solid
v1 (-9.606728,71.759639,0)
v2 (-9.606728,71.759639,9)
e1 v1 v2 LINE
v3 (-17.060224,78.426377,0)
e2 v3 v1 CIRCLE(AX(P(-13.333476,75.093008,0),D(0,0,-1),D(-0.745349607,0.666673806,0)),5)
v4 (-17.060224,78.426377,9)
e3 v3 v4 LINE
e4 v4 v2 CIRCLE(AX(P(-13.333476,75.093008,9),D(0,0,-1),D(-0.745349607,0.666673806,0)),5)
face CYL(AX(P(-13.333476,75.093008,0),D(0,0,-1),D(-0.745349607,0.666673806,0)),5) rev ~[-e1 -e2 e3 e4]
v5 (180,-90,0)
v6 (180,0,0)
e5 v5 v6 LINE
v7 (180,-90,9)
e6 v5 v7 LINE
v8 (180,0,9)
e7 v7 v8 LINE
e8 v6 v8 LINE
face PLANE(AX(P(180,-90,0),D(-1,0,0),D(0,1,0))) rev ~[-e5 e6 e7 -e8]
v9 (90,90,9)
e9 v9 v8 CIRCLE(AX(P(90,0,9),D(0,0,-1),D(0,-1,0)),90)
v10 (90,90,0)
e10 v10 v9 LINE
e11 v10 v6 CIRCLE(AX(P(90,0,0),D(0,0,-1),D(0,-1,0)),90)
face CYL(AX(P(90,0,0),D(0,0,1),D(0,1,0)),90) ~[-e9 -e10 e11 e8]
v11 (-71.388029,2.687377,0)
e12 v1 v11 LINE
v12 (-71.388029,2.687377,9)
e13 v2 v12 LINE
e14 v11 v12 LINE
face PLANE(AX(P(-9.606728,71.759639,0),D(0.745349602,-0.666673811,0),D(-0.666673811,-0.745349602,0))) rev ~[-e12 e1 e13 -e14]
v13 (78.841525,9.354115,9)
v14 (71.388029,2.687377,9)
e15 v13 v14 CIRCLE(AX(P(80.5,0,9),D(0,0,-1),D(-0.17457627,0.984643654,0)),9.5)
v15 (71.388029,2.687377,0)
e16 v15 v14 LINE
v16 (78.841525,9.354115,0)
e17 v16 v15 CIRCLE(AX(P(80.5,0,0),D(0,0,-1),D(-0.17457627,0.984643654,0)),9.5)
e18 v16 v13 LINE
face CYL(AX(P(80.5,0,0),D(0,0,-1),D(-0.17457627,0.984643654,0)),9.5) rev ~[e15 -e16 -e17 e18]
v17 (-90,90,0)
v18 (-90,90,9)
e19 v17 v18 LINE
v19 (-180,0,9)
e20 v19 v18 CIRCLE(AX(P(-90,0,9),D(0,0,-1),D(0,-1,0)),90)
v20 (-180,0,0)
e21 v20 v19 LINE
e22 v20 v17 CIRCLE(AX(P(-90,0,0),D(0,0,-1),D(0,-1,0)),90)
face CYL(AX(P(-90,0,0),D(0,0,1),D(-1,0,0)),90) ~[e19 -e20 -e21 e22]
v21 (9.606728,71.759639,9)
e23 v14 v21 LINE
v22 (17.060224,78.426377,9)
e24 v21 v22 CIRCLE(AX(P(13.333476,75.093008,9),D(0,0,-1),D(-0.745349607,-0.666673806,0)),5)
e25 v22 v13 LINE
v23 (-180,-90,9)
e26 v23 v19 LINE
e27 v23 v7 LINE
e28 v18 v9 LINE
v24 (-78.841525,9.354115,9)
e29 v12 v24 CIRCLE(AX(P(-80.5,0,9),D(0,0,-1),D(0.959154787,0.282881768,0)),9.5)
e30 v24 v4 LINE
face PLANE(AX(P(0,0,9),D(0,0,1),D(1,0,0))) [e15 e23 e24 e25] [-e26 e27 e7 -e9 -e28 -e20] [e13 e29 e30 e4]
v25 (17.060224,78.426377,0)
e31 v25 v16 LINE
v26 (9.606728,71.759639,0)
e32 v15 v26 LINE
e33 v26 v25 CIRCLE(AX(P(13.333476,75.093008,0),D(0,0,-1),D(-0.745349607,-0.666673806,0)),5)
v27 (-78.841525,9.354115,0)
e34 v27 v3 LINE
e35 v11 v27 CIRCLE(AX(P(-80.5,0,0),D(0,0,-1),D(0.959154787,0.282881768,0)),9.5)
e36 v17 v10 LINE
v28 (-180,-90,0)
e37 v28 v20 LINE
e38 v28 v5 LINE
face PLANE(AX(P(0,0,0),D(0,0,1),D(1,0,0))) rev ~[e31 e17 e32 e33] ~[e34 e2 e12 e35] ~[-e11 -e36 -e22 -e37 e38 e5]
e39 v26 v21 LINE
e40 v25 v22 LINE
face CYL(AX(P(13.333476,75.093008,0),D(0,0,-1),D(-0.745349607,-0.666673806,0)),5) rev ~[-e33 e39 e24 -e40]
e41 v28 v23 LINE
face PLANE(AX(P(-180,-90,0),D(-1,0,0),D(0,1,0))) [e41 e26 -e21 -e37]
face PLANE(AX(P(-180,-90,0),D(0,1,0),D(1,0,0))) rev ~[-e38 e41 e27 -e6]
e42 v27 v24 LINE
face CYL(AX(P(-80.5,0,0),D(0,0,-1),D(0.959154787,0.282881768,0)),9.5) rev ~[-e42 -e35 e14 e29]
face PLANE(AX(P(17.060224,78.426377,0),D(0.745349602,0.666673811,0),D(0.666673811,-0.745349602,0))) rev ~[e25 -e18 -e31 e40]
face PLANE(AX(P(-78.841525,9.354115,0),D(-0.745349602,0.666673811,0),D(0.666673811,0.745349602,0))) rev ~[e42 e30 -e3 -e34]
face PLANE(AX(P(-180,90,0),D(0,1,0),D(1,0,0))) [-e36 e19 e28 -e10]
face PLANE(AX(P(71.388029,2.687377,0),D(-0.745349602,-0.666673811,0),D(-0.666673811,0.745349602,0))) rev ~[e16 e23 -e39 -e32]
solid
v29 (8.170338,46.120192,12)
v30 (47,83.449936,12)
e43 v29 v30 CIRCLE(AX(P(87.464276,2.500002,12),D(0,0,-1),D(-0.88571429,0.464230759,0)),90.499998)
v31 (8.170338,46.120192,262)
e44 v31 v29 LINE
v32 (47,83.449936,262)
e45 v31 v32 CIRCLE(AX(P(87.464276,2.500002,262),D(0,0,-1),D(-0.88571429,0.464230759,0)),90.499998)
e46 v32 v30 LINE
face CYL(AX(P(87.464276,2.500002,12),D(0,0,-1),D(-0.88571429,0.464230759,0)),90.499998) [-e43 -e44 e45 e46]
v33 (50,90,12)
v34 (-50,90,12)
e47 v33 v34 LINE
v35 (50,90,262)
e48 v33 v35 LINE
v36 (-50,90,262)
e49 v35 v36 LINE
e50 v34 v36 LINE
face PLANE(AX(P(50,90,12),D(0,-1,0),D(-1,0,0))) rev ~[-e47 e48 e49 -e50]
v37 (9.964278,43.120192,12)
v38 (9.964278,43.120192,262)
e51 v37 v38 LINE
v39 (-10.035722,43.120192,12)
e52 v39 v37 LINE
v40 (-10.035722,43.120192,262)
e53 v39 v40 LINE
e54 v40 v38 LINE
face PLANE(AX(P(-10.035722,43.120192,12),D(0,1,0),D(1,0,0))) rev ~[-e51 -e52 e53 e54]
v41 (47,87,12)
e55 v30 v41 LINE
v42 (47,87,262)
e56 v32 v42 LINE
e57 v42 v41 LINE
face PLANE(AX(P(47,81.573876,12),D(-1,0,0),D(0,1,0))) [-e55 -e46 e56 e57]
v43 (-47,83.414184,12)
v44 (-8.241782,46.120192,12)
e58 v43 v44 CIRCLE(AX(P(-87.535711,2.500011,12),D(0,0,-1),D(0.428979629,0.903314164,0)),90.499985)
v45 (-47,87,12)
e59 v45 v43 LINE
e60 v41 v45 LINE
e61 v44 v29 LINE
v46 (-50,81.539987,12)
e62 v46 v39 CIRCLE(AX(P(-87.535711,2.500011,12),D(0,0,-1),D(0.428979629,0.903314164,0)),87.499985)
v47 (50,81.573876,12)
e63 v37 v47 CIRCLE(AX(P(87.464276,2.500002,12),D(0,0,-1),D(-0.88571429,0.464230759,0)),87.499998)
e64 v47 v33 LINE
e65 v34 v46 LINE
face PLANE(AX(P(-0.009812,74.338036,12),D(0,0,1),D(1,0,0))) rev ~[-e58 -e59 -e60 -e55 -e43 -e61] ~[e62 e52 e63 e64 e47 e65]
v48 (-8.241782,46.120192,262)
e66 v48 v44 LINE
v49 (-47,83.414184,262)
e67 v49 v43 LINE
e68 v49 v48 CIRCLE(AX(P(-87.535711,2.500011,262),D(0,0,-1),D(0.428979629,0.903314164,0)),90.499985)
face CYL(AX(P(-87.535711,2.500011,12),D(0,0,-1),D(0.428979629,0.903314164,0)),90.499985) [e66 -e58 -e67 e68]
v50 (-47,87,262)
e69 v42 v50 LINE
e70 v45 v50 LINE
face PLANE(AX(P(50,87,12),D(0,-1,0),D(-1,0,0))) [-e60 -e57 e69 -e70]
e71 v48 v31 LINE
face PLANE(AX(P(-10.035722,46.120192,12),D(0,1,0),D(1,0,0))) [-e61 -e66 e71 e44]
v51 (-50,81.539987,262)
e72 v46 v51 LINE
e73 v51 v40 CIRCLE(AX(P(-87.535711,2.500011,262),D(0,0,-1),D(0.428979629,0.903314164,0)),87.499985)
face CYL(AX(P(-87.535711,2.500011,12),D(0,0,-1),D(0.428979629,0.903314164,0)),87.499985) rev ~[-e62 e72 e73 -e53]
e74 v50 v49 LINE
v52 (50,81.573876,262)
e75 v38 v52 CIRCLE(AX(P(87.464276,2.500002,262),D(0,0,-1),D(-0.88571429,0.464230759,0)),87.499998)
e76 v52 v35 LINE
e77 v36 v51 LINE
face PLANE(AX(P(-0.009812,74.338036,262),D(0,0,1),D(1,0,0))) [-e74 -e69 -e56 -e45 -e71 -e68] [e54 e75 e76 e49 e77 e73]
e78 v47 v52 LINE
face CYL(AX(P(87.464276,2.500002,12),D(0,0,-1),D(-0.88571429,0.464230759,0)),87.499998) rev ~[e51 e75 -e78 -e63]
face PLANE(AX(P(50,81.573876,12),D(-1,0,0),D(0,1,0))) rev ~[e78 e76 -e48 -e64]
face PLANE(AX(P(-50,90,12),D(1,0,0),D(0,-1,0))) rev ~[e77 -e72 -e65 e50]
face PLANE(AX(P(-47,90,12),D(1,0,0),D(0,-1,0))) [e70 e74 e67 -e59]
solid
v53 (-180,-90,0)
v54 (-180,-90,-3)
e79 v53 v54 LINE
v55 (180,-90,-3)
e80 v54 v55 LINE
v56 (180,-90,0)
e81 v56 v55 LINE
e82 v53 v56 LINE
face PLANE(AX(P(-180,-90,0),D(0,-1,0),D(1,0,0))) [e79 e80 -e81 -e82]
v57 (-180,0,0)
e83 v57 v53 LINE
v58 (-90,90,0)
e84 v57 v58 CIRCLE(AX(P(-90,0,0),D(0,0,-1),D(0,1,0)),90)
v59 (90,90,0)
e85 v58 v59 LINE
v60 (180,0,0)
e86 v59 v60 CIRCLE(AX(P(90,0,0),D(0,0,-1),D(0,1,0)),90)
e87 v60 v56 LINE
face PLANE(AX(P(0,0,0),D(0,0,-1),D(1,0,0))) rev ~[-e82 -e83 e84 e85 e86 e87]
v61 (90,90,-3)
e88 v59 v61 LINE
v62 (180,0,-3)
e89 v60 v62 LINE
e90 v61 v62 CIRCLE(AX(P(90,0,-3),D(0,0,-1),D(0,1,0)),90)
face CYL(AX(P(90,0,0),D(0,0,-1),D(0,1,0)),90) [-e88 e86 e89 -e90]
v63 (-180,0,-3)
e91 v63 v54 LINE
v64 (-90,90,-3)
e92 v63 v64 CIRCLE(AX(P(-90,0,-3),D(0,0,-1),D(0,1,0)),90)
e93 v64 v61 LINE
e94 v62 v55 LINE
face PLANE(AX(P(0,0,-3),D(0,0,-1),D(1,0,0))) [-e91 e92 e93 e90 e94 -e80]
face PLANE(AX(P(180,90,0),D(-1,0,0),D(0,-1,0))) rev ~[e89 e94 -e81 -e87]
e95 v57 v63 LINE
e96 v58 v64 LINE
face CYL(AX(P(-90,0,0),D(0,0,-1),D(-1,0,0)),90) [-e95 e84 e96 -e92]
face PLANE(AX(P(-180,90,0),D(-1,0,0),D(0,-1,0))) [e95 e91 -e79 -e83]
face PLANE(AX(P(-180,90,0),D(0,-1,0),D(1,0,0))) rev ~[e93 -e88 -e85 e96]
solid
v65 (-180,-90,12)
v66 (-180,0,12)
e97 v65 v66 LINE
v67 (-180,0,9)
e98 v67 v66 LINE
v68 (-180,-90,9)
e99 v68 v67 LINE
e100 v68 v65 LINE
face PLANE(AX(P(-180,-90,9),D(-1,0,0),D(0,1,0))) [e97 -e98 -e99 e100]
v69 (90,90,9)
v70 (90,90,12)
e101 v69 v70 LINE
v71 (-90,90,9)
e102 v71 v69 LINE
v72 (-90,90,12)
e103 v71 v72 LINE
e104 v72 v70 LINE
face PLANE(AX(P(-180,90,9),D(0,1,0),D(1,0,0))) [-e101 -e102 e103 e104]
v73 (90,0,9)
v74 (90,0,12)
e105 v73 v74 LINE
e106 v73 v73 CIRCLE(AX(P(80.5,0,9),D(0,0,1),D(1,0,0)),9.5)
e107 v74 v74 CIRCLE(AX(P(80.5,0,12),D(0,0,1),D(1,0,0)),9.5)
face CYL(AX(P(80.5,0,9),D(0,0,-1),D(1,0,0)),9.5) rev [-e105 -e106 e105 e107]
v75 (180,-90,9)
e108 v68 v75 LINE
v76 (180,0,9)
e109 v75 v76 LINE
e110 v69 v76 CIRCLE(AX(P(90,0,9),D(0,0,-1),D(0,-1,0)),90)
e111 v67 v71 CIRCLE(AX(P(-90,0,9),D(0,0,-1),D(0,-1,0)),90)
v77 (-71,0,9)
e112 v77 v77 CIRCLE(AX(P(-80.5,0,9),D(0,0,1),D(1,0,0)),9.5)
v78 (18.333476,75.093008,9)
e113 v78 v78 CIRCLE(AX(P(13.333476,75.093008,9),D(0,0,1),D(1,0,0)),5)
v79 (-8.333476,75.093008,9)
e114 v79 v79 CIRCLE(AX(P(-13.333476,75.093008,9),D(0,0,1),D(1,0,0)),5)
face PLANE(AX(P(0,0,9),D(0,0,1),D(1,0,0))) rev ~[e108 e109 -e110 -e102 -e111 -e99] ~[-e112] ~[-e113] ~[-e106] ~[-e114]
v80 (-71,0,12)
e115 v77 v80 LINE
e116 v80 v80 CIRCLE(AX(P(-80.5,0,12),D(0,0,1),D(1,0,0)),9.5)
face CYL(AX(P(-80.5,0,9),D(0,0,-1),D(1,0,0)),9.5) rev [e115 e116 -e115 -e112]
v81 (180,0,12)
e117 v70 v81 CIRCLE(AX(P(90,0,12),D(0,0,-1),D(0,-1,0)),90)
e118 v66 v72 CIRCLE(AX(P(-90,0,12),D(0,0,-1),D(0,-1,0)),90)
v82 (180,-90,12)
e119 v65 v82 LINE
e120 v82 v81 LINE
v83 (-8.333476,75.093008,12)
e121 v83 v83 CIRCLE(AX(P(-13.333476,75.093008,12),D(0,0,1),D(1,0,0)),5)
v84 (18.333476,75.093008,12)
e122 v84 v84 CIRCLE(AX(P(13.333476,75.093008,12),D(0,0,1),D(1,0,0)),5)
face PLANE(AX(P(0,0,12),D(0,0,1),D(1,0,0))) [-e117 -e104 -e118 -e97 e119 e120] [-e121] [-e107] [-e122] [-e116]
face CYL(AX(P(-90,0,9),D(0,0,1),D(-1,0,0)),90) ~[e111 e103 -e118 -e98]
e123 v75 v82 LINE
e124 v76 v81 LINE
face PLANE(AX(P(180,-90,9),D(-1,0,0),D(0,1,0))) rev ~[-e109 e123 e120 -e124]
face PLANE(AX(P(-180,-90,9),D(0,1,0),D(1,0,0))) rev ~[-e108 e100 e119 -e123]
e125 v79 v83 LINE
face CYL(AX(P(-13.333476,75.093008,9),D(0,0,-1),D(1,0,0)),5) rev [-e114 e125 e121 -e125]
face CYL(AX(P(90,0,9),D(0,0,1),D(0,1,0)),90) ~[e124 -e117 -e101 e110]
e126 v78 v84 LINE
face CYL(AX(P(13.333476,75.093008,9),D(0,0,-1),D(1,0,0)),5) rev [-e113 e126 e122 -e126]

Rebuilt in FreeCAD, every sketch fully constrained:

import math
import FreeCAD as App
import Part
import Sketcher

V = App.Vector


def edges_at(feature, points):
    """Names of the edges that pass closest to the given points."""
    edges = feature.Shape.Edges
    near = lambda p: min(range(len(edges)), key=lambda i: edges[i].distToShape(Part.Vertex(*p))[0])
    return sorted({f"Edge{near(p) + 1}" for p in points})


def faces_at(feature, points):
    """Names of the faces that lie closest to the given points."""
    faces = feature.Shape.Faces
    near = lambda p: min(range(len(faces)), key=lambda i: faces[i].distToShape(Part.Vertex(*p))[0])
    return sorted({f"Face{near(p) + 1}" for p in points})


def add_polygon(sketch, points):
    """Adds a closed chain of lines whose ends are joined by coincident constraints."""
    first, n = sketch.GeometryCount, len(points)
    for a, b in zip(points, points[1:] + points[:1]):
        sketch.addGeometry(Part.LineSegment(App.Vector(*a, 0), App.Vector(*b, 0)), False)
    for i in range(n):
        sketch.addConstraint(Sketcher.Constraint("Coincident", first + i, 2, first + (i + 1) % n, 1))

doc = App.newDocument("Part")
body = doc.addObject("PartDesign::Body", "Body")

sketch1 = body.newObject("Sketcher::SketchObject", "Sketch")
sketch1.AttachmentSupport = (doc.getObject("XY_Plane"), [""])
sketch1.MapMode = "FlatFace"
add_polygon(sketch1, [(-180, 90), (-180, -90), (180, -90), (180, 90)])
sketch1.addGeometry(Part.LineSegment(V(-9.6, 71.8, 0), V(-71.4, 2.7, 0)), False)
sketch1.addGeometry(Part.ArcOfCircle(Part.Circle(V(-80.5, 0, 0), V(0, 0, 1), 9.5), math.radians(80), math.radians(376)), False)
sketch1.addGeometry(Part.LineSegment(V(-78.8, 9.4, 0), V(-17.1, 78.4, 0)), False)
sketch1.addGeometry(Part.ArcOfCircle(Part.Circle(V(-13.3, 75.1, 0), V(0, 0, 1), 5), math.radians(-42), math.radians(138)), False)
sketch1.addGeometry(Part.ArcOfCircle(Part.Circle(V(80.5, 0, 0), V(0, 0, 1), 9.5), math.radians(164), math.radians(460)), False)
sketch1.addGeometry(Part.LineSegment(V(71.4, 2.7, 0), V(9.6, 71.8, 0)), False)
sketch1.addGeometry(Part.ArcOfCircle(Part.Circle(V(13.3, 75.1, 0), V(0, 0, 1), 5), math.radians(42), math.radians(222)), False)
sketch1.addGeometry(Part.LineSegment(V(17.1, 78.4, 0), V(78.8, 9.4, 0)), False)
sketch1.addConstraint(Sketcher.Constraint("Coincident", 4, 2, 5, 2))
sketch1.addConstraint(Sketcher.Constraint("Coincident", 5, 1, 6, 1))
sketch1.addConstraint(Sketcher.Constraint("Tangent", 6, 2, 7, 2))
sketch1.addConstraint(Sketcher.Constraint("Tangent", 7, 1, 4, 1))
sketch1.addConstraint(Sketcher.Constraint("Coincident", 8, 1, 9, 1))
sketch1.addConstraint(Sketcher.Constraint("Tangent", 9, 2, 10, 2))
sketch1.addConstraint(Sketcher.Constraint("Tangent", 10, 1, 11, 1))
sketch1.addConstraint(Sketcher.Constraint("Coincident", 11, 2, 8, 2))
sketch1.addConstraint(Sketcher.Constraint("Vertical", 0))
sketch1.addConstraint(Sketcher.Constraint("Horizontal", 1))
sketch1.addConstraint(Sketcher.Constraint("Vertical", 2))
sketch1.addConstraint(Sketcher.Constraint("Horizontal", 3))
sketch1.addConstraint(Sketcher.Constraint("Equal", 5, 8))
sketch1.addConstraint(Sketcher.Constraint("Equal", 7, 10))
sketch1.addConstraint(Sketcher.Constraint("Symmetric", 5, 3, 8, 3, -1, 1))
sketch1.addConstraint(Sketcher.Constraint("Symmetric", 0, 2, 2, 2, -1, 1))
sketch1.addConstraint(Sketcher.Constraint("Symmetric", 7, 3, 10, 3, -2))
sketch1.addConstraint(Sketcher.Constraint("Symmetric", 4, 2, 8, 1, -2))
sketch1.addConstraint(Sketcher.Constraint("Parallel", 4, 6))
sketch1.addConstraint(Sketcher.Constraint("Parallel", 9, 11))
sketch1.addConstraint(Sketcher.Constraint("Equal", 4, 6))
sketch1.addConstraint(Sketcher.Constraint("Radius", 7, 5.0))
sketch1.addConstraint(Sketcher.Constraint("Radius", 5, 9.5))
sketch1.addConstraint(Sketcher.Constraint("DistanceX", 1, 1, 1, 2, 360.0))
sketch1.addConstraint(Sketcher.Constraint("DistanceY", 0, 2, 0, 1, 180.0))
sketch1.addConstraint(Sketcher.Constraint("DistanceX", 5, 3, 8, 3, 160.999999))
sketch1.addConstraint(Sketcher.Constraint("DistanceX", 5, 1, 10, 3, 92.175001))
sketch1.addConstraint(Sketcher.Constraint("DistanceY", 4, 2, 6, 2, 75.739))
pad1 = body.newObject("PartDesign::Pad", "Pad")
pad1.Profile = sketch1
pad1.Length = 9
doc.recompute()

fillet = body.newObject("PartDesign::Fillet", "Fillet")
fillet.Base = (pad1, edges_at(pad1, [(-180, 90, 4.5), (180, 90, 4.5)]))
fillet.Radius = 90
body2 = doc.addObject("PartDesign::Body", "Body001")

sketch2 = body2.newObject("Sketcher::SketchObject", "Sketch001")
sketch2.AttachmentSupport = (doc.getObject("XY_Plane001"), [""])
sketch2.MapMode = "FlatFace"
sketch2.AttachmentOffset = App.Placement(V(0, 0, 9), App.Rotation())
add_polygon(sketch2, [(-180, 90), (-180, -90), (180, -90), (180, 90)])
sketch2.addGeometry(Part.Circle(V(-80, 0, 0), V(0, 0, 1), 10), False)
sketch2.addGeometry(Part.Circle(V(80, 0, 0), V(0, 0, 1), 10), False)
sketch2.addGeometry(Part.Circle(V(-13, 75, 0), V(0, 0, 1), 5), False)
sketch2.addGeometry(Part.Circle(V(13, 75, 0), V(0, 0, 1), 5), False)
sketch2.addConstraint(Sketcher.Constraint("Vertical", 0))
sketch2.addConstraint(Sketcher.Constraint("Horizontal", 1))
sketch2.addConstraint(Sketcher.Constraint("Vertical", 2))
sketch2.addConstraint(Sketcher.Constraint("Horizontal", 3))
sketch2.addConstraint(Sketcher.Constraint("Equal", 4, 5))
sketch2.addConstraint(Sketcher.Constraint("Equal", 6, 7))
sketch2.addConstraint(Sketcher.Constraint("Symmetric", 4, 3, 5, 3, -1, 1))
sketch2.addConstraint(Sketcher.Constraint("Symmetric", 0, 2, 2, 2, -1, 1))
sketch2.addConstraint(Sketcher.Constraint("Symmetric", 6, 3, 7, 3, -2))
sketch2.addConstraint(Sketcher.Constraint("PointOnObject", 4, 3, -1))
sketch2.addConstraint(Sketcher.Constraint("Diameter", 4, 19.0))
sketch2.addConstraint(Sketcher.Constraint("Diameter", 6, 10.0))
sketch2.addConstraint(Sketcher.Constraint("DistanceX", 1, 1, 1, 2, 360.0))
sketch2.addConstraint(Sketcher.Constraint("DistanceY", 0, 2, 0, 1, 180.0))
sketch2.addConstraint(Sketcher.Constraint("DistanceX", 4, 3, 5, 3, 161.0))
sketch2.addConstraint(Sketcher.Constraint("DistanceX", 6, 3, 7, 3, 26.666952))
sketch2.addConstraint(Sketcher.Constraint("DistanceY", 0, 2, 6, 3, 165.093008))
pad2 = body2.newObject("PartDesign::Pad", "Pad001")
pad2.Profile = sketch2
pad2.Length = 3
doc.recompute()

fillet2 = body2.newObject("PartDesign::Fillet", "Fillet001")
fillet2.Base = (pad2, edges_at(pad2, [(180, 90, 10.5), (-180, 90, 10.5)]))
fillet2.Radius = 90
body3 = doc.addObject("PartDesign::Body", "Body002")

sketch3 = body3.newObject("Sketcher::SketchObject", "Sketch002")
sketch3.AttachmentSupport = (doc.getObject("XY_Plane002"), [""])
sketch3.MapMode = "FlatFace"
add_polygon(sketch3, [(-180, -90), (-180, 90), (180, 90), (180, -90)])
sketch3.addConstraint(Sketcher.Constraint("Vertical", 0))
sketch3.addConstraint(Sketcher.Constraint("Horizontal", 1))
sketch3.addConstraint(Sketcher.Constraint("Vertical", 2))
sketch3.addConstraint(Sketcher.Constraint("Horizontal", 3))
sketch3.addConstraint(Sketcher.Constraint("Symmetric", 0, 2, 2, 2, -1, 1))
sketch3.addConstraint(Sketcher.Constraint("DistanceX", 1, 1, 1, 2, 360.0))
sketch3.addConstraint(Sketcher.Constraint("DistanceY", 0, 1, 0, 2, 180.0))
pad3 = body3.newObject("PartDesign::Pad", "Pad002")
pad3.Profile = sketch3
pad3.Length = 3
pad3.Reversed = True
doc.recompute()

fillet3 = body3.newObject("PartDesign::Fillet", "Fillet002")
fillet3.Base = (pad3, edges_at(pad3, [(180, 90, -1.5), (-180, 90, -1.5)]))
fillet3.Radius = 90
body4 = doc.addObject("PartDesign::Body", "Body003")

sketch4 = body4.newObject("Sketcher::SketchObject", "Sketch003")
sketch4.AttachmentSupport = (doc.getObject("XY_Plane003"), [""])
sketch4.MapMode = "FlatFace"
sketch4.AttachmentOffset = App.Placement(V(0, 0, 12), App.Rotation())
sketch4.addGeometry(Part.LineSegment(V(50, 90, 0), V(-50, 90, 0)), False)
sketch4.addGeometry(Part.LineSegment(V(-50, 90, 0), V(-50, 82, 0)), False)
sketch4.addGeometry(Part.ArcOfCircle(Part.Circle(V(-88, 3, 0), V(0, 0, 1), 87), math.radians(28), math.radians(65)), False)
sketch4.addGeometry(Part.LineSegment(V(-10, 43, 0), V(10, 43, 0)), False)
sketch4.addGeometry(Part.ArcOfCircle(Part.Circle(V(87, 3, 0), V(0, 0, 1), 87), math.radians(115), math.radians(152)), False)
sketch4.addGeometry(Part.LineSegment(V(50, 82, 0), V(50, 90, 0)), False)
sketch4.addConstraint(Sketcher.Constraint("Coincident", 0, 2, 1, 1))
sketch4.addConstraint(Sketcher.Constraint("Coincident", 1, 2, 2, 2))
sketch4.addConstraint(Sketcher.Constraint("Coincident", 2, 1, 3, 1))
sketch4.addConstraint(Sketcher.Constraint("Coincident", 3, 2, 4, 2))
sketch4.addConstraint(Sketcher.Constraint("Coincident", 4, 1, 5, 1))
sketch4.addConstraint(Sketcher.Constraint("Coincident", 5, 2, 0, 1))
sketch4.addConstraint(Sketcher.Constraint("Horizontal", 0))
sketch4.addConstraint(Sketcher.Constraint("Vertical", 1))
sketch4.addConstraint(Sketcher.Constraint("Horizontal", 3))
sketch4.addConstraint(Sketcher.Constraint("Vertical", 5))
sketch4.addConstraint(Sketcher.Constraint("DistanceX", 0, 2, 0, 1, 100.0))
sketch4.addConstraint(Sketcher.Constraint("DistanceX", 3, 1, 3, 2, 20.0))
sketch4.addConstraint(Sketcher.Constraint("DistanceX", 0, 2, -1, 1, 50.0))
sketch4.addConstraint(Sketcher.Constraint("DistanceY", -1, 1, 0, 2, 90.0))
sketch4.addConstraint(Sketcher.Constraint("DistanceY", -1, 1, 4, 3, 2.500002))
sketch4.addConstraint(Sketcher.Constraint("DistanceX", 2, 1, 4, 3, 97.499998))
sketch4.addConstraint(Sketcher.Constraint("Radius", 2, 87.499985))
sketch4.addConstraint(Sketcher.Constraint("Radius", 4, 87.499998))
sketch4.addConstraint(Sketcher.Constraint("DistanceY", 1, 2, 1, 1, 8.460013))
sketch4.addConstraint(Sketcher.Constraint("DistanceY", 5, 1, 5, 2, 8.426124))
pad4 = body4.newObject("PartDesign::Pad", "Pad003")
pad4.Profile = sketch4
pad4.Length = 250
doc.recompute()

thickness = body4.newObject("PartDesign::Thickness", "Thickness")
thickness.Base = (pad4, faces_at(pad4, [(0, 66.56, 262), (0, 66.56, 12)]))
thickness.Value = 3
thickness.Reversed = True
thickness.Join = "Arc"

doc.recompute()
